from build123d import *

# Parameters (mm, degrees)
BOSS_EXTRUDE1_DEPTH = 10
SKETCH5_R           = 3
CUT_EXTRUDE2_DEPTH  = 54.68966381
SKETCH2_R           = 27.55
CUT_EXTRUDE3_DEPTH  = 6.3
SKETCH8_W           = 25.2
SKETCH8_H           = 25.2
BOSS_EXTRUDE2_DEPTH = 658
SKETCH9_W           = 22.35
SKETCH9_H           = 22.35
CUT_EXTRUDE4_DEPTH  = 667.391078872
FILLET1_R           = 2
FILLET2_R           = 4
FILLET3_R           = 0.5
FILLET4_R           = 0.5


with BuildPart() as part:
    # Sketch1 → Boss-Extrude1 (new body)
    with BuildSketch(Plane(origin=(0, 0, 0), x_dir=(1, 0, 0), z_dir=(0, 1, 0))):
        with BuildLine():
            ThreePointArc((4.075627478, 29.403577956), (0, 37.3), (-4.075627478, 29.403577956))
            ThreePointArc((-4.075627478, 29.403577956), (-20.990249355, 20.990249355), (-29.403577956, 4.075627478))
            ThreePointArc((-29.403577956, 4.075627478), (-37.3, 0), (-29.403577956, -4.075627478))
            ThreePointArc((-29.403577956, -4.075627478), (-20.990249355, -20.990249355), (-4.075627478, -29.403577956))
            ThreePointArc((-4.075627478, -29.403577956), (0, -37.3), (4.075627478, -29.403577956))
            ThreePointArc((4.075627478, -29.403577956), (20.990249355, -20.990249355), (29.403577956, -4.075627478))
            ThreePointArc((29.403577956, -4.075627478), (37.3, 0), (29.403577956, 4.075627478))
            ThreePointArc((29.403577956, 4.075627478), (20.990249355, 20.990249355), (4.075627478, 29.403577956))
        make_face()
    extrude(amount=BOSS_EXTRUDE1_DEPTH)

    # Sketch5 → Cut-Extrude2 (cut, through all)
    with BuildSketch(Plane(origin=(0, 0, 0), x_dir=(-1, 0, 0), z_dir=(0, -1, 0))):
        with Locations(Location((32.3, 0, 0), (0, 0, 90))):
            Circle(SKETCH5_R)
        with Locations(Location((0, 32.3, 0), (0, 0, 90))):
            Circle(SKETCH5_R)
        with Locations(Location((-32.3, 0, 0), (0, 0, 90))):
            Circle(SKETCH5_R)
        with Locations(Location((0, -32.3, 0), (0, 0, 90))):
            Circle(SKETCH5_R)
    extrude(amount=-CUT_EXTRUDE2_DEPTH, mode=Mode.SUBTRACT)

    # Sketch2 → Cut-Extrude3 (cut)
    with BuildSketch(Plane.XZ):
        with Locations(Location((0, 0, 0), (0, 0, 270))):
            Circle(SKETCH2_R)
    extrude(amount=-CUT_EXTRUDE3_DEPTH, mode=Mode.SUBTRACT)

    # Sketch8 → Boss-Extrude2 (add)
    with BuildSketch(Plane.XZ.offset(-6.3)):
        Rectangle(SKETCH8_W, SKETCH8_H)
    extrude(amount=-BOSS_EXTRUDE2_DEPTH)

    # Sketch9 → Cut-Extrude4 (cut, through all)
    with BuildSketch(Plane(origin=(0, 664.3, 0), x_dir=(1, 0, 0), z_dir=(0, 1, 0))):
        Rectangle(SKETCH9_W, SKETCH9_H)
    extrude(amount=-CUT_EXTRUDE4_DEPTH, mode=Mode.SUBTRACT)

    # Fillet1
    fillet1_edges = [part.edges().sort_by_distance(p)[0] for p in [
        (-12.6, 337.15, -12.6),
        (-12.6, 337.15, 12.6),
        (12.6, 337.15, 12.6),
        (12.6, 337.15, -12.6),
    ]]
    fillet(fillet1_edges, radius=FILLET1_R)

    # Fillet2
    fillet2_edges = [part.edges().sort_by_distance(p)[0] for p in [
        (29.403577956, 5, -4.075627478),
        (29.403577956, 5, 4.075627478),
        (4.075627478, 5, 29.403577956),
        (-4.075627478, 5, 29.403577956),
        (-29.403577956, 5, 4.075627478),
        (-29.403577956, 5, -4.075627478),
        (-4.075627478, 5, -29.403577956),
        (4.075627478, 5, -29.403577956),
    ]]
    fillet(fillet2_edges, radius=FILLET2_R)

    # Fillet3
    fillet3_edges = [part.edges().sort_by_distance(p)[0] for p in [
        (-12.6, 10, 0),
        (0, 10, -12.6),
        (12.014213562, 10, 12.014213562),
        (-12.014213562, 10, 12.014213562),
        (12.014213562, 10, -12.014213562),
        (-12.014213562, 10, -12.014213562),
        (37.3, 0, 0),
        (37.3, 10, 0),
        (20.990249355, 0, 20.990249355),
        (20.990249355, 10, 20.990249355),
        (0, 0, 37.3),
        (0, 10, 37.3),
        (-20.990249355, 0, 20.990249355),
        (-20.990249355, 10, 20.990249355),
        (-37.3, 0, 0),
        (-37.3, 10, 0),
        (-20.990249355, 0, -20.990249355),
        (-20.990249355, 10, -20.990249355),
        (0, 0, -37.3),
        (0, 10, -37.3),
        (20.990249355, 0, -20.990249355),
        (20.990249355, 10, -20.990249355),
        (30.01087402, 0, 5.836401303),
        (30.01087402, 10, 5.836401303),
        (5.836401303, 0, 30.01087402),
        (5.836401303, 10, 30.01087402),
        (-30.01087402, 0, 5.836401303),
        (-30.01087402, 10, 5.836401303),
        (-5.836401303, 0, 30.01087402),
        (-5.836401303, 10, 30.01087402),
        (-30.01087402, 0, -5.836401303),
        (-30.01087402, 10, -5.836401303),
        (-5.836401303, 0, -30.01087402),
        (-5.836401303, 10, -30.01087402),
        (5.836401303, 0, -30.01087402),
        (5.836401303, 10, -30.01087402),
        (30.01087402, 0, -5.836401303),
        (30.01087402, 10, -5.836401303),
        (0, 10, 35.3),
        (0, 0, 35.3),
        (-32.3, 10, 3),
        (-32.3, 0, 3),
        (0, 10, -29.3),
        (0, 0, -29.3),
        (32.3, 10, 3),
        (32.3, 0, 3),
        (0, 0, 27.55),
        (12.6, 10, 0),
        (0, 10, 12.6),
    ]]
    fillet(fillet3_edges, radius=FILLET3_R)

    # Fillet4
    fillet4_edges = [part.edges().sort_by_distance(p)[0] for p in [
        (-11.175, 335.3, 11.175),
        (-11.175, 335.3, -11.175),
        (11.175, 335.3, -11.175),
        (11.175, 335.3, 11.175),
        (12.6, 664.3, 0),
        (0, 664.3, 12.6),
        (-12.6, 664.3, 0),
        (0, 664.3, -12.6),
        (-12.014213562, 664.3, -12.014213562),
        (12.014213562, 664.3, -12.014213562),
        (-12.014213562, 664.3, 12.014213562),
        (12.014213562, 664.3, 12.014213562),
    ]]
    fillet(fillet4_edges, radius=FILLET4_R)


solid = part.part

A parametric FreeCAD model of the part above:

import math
import FreeCAD as App
import Part
import Sketcher
from FreeCAD import Vector
Q = App.Units.Quantity


def edges_at(feature, points):
    """Names of the edges that pass closest to the given points."""
    edges = feature.Shape.Edges
    near = lambda p: min(range(len(edges)), key=lambda i: edges[i].distToShape(Part.Vertex(*p))[0])
    return sorted({f"Edge{near(p) + 1}" for p in points})

doc = App.newDocument("Part")
body = doc.addObject("PartDesign::Body", "Body")

# Sketch on XZ plane
sketch1 = body.newObject("Sketcher::SketchObject", "Sketch")
sketch1.AttachmentSupport = (doc.getObject("XZ_Plane"), [""])
sketch1.MapMode = "FlatFace"
sketch1.addGeometry(Part.ArcOfCircle(Part.Circle(Vector(0, -32.3, 0), Vector(0, 0, 1), 5), math.radians(144.599773), math.radians(395.400227)), False)
sketch1.addGeometry(Part.ArcOfCircle(Part.Circle(Vector(0, 0, 0), Vector(0, 0, 1), 29.684695), math.radians(-172.108519), math.radians(-97.891481)), False)
sketch1.addGeometry(Part.ArcOfCircle(Part.Circle(Vector(-32.3, 0, 0), Vector(0, 0, 1), 5), math.radians(54.599773), math.radians(305.400227)), False)
sketch1.addGeometry(Part.ArcOfCircle(Part.Circle(Vector(0, 0, 0), Vector(0, 0, 1), 29.684695), math.radians(97.891481), math.radians(172.108519)), False)
sketch1.addGeometry(Part.ArcOfCircle(Part.Circle(Vector(0, 32.3, 0), Vector(0, 0, 1), 5), math.radians(-35.400227), math.radians(215.400227)), False)
sketch1.addGeometry(Part.ArcOfCircle(Part.Circle(Vector(0, 0, 0), Vector(0, 0, 1), 29.684695), math.radians(7.891481), math.radians(82.108519)), False)
sketch1.addGeometry(Part.ArcOfCircle(Part.Circle(Vector(32.3, 0, 0), Vector(0, 0, 1), 5), math.radians(-125.400227), math.radians(125.400227)), False)
sketch1.addGeometry(Part.ArcOfCircle(Part.Circle(Vector(0, 0, 0), Vector(0, 0, 1), 29.684695), math.radians(-82.108519), math.radians(-7.891481)), False)
sketch1.addConstraint(Sketcher.Constraint("Coincident", 0, 1, 1, 2))
sketch1.addConstraint(Sketcher.Constraint("Coincident", 1, 1, 2, 2))
sketch1.addConstraint(Sketcher.Constraint("Coincident", 2, 1, 3, 2))
sketch1.addConstraint(Sketcher.Constraint("Coincident", 3, 1, 4, 2))
sketch1.addConstraint(Sketcher.Constraint("Coincident", 4, 1, 5, 2))
sketch1.addConstraint(Sketcher.Constraint("Coincident", 5, 1, 6, 2))
sketch1.addConstraint(Sketcher.Constraint("Coincident", 6, 1, 7, 2))
sketch1.addConstraint(Sketcher.Constraint("Coincident", 7, 1, 0, 2))
sketch1.addConstraint(Sketcher.Constraint("Coincident", 1, 3, -1, 1))
sketch1.addConstraint(Sketcher.Constraint("Coincident", 3, 3, -1, 1))
sketch1.addConstraint(Sketcher.Constraint("Coincident", 5, 3, -1, 1))
sketch1.addConstraint(Sketcher.Constraint("Coincident", 7, 3, -1, 1))
sketch1.addConstraint(Sketcher.Constraint("Equal", 0, 2))
sketch1.addConstraint(Sketcher.Constraint("Equal", 1, 3))
sketch1.addConstraint(Sketcher.Constraint("Equal", 2, 4))
sketch1.addConstraint(Sketcher.Constraint("Equal", 3, 5))
sketch1.addConstraint(Sketcher.Constraint("Equal", 4, 6))
sketch1.addConstraint(Sketcher.Constraint("Equal", 5, 7))
sketch1.addConstraint(Sketcher.Constraint("Symmetric", 0, 3, 4, 3, -1, 1))
sketch1.addConstraint(Sketcher.Constraint("Symmetric", 2, 3, 6, 3, -1, 1))
sketch1.addConstraint(Sketcher.Constraint("PointOnObject", 0, 3, -2))
sketch1.addConstraint(Sketcher.Constraint("PointOnObject", 2, 3, -1))
sketch1.addConstraint(Sketcher.Constraint("Radius", 0, Q("5 mm")))
sketch1.addConstraint(Sketcher.Constraint("DistanceY", 0, 3, -1, 1, Q("32.3 mm")))
sketch1.addConstraint(Sketcher.Constraint("DistanceX", 2, 3, -1, 1, Q("32.3 mm")))
sketch1.addConstraint(Sketcher.Constraint("Radius", 1, Q("29.684695 mm")))
pad1 = body.newObject("PartDesign::Pad", "Pad")
pad1.Profile = sketch1
pad1.Length = 10
pad1.Reversed = True

# Sketch on XZ plane
sketch2 = body.newObject("Sketcher::SketchObject", "Sketch001")
sketch2.AttachmentSupport = (doc.getObject("XZ_Plane"), [""])
sketch2.MapMode = "FlatFace"
sketch2.addGeometry(Part.Circle(Vector(-32.3, 0, 0), Vector(0, 0, 1), 3), False)
sketch2.addGeometry(Part.Circle(Vector(0, -32.3, 0), Vector(0, 0, 1), 3), False)
sketch2.addGeometry(Part.Circle(Vector(32.3, 0, 0), Vector(0, 0, 1), 3), False)
sketch2.addGeometry(Part.Circle(Vector(0, 32.3, 0), Vector(0, 0, 1), 3), False)
sketch2.addConstraint(Sketcher.Constraint("Equal", 0, 1))
sketch2.addConstraint(Sketcher.Constraint("Equal", 1, 2))
sketch2.addConstraint(Sketcher.Constraint("Equal", 2, 3))
sketch2.addConstraint(Sketcher.Constraint("Symmetric", 0, 3, 2, 3, -1, 1))
sketch2.addConstraint(Sketcher.Constraint("Symmetric", 1, 3, 3, 3, -1, 1))
sketch2.addConstraint(Sketcher.Constraint("PointOnObject", 0, 3, -1))
sketch2.addConstraint(Sketcher.Constraint("PointOnObject", 1, 3, -2))
sketch2.addConstraint(Sketcher.Constraint("Diameter", 0, Q("6 mm")))
sketch2.addConstraint(Sketcher.Constraint("DistanceX", 0, 3, -1, 1, Q("32.3 mm")))
sketch2.addConstraint(Sketcher.Constraint("DistanceY", 1, 3, -1, 1, Q("32.3 mm")))
pocket1 = body.newObject("PartDesign::Pocket", "Pocket")
pocket1.Profile = sketch2
pocket1.Type = "ThroughAll"

# Sketch on XZ plane
sketch3 = body.newObject("Sketcher::SketchObject", "Sketch002")
sketch3.AttachmentSupport = (doc.getObject("XZ_Plane"), [""])
sketch3.MapMode = "FlatFace"
sketch3.addGeometry(Part.Circle(Vector(0, 0, 0), Vector(0, 0, 1), 27.55), False)
sketch3.addConstraint(Sketcher.Constraint("Coincident", 0, 3, -1, 1))
sketch3.addConstraint(Sketcher.Constraint("Diameter", 0, Q("55.1 mm")))
pocket2 = body.newObject("PartDesign::Pocket", "Pocket001")
pocket2.Profile = sketch3
pocket2.Length = 6.3

# Sketch on XZ plane
sketch4 = body.newObject("Sketcher::SketchObject", "Sketch003")
sketch4.AttachmentSupport = (doc.getObject("XZ_Plane"), [""])
sketch4.MapMode = "FlatFace"
sketch4.AttachmentOffset = App.Placement(Vector(0, 0, -6.3), App.Rotation())
sketch4.addGeometry(Part.LineSegment(Vector(-12.6, 12.6, 0), Vector(-12.6, -12.6, 0)), False)
sketch4.addGeometry(Part.LineSegment(Vector(-12.6, -12.6, 0), Vector(12.6, -12.6, 0)), False)
sketch4.addGeometry(Part.LineSegment(Vector(12.6, -12.6, 0), Vector(12.6, 12.6, 0)), False)
sketch4.addGeometry(Part.LineSegment(Vector(12.6, 12.6, 0), Vector(-12.6, 12.6, 0)), False)
sketch4.addConstraint(Sketcher.Constraint("Coincident", 0, 2, 1, 1))
sketch4.addConstraint(Sketcher.Constraint("Coincident", 1, 2, 2, 1))
sketch4.addConstraint(Sketcher.Constraint("Coincident", 2, 2, 3, 1))
sketch4.addConstraint(Sketcher.Constraint("Coincident", 3, 2, 0, 1))
sketch4.addConstraint(Sketcher.Constraint("Vertical", 0))
sketch4.addConstraint(Sketcher.Constraint("Horizontal", 1))
sketch4.addConstraint(Sketcher.Constraint("Vertical", 2))
sketch4.addConstraint(Sketcher.Constraint("Horizontal", 3))
sketch4.addConstraint(Sketcher.Constraint("Symmetric", 0, 2, 2, 2, -1, 1))
sketch4.addConstraint(Sketcher.Constraint("Equal", 3, 0))
sketch4.addConstraint(Sketcher.Constraint("DistanceX", 1, 1, 1, 2, Q("25.2 mm")))
pad2 = body.newObject("PartDesign::Pad", "Pad001")
pad2.Profile = sketch4
pad2.Length = 658
pad2.Reversed = True

# Sketch on XZ plane
sketch5 = body.newObject("Sketcher::SketchObject", "Sketch004")
sketch5.AttachmentSupport = (doc.getObject("XZ_Plane"), [""])
sketch5.MapMode = "FlatFace"
sketch5.AttachmentOffset = App.Placement(Vector(0, 0, -664.3), App.Rotation())
sketch5.addGeometry(Part.LineSegment(Vector(-11.175, -11.175, 0), Vector(-11.175, 11.175, 0)), False)
sketch5.addGeometry(Part.LineSegment(Vector(-11.175, 11.175, 0), Vector(11.175, 11.175, 0)), False)
sketch5.addGeometry(Part.LineSegment(Vector(11.175, 11.175, 0), Vector(11.175, -11.175, 0)), False)
sketch5.addGeometry(Part.LineSegment(Vector(11.175, -11.175, 0), Vector(-11.175, -11.175, 0)), False)
sketch5.addConstraint(Sketcher.Constraint("Coincident", 0, 2, 1, 1))
sketch5.addConstraint(Sketcher.Constraint("Coincident", 1, 2, 2, 1))
sketch5.addConstraint(Sketcher.Constraint("Coincident", 2, 2, 3, 1))
sketch5.addConstraint(Sketcher.Constraint("Coincident", 3, 2, 0, 1))
sketch5.addConstraint(Sketcher.Constraint("Vertical", 0))
sketch5.addConstraint(Sketcher.Constraint("Horizontal", 1))
sketch5.addConstraint(Sketcher.Constraint("Vertical", 2))
sketch5.addConstraint(Sketcher.Constraint("Horizontal", 3))
sketch5.addConstraint(Sketcher.Constraint("Symmetric", 0, 2, 2, 2, -1, 1))
sketch5.addConstraint(Sketcher.Constraint("Equal", 3, 0))
sketch5.addConstraint(Sketcher.Constraint("DistanceX", 1, 1, 1, 2, Q("22.35 mm")))
pocket3 = body.newObject("PartDesign::Pocket", "Pocket002")
pocket3.Profile = sketch5
pocket3.Type = "ThroughAll"
pocket3.Reversed = True
doc.recompute()

fillet = body.newObject("PartDesign::Fillet", "Fillet")
fillet.Base = (pocket3, edges_at(pocket3, [
    (-12.6, 337.15, -12.6),
    (-12.6, 337.15, 12.6),
    (12.6, 337.15, 12.6),
    (12.6, 337.15, -12.6),
]))
fillet.Radius = 2
doc.recompute()

fillet2 = body.newObject("PartDesign::Fillet", "Fillet001")
fillet2.Base = (fillet, edges_at(fillet, [
    (29.404, 5, -4.076),
    (29.404, 5, 4.076),
    (4.076, 5, 29.404),
    (-4.076, 5, 29.404),
    (-29.404, 5, 4.076),
    (-29.404, 5, -4.076),
    (-4.076, 5, -29.404),
    (4.076, 5, -29.404),
]))
fillet2.Radius = 4
doc.recompute()

fillet3 = body.newObject("PartDesign::Fillet", "Fillet002")
fillet3.Base = (fillet2, edges_at(fillet2, [
    (-12.6, 10, 0),
    (0, 10, -12.6),
    (12.014, 10, 12.014),
    (-12.014, 10, 12.014),
    (12.014, 10, -12.014),
    (-12.014, 10, -12.014),
    (37.3, 0, 0),
    (37.3, 10, 0),
    (20.99, 0, 20.99),
    (20.99, 10, 20.99),
    (0, 0, 37.3),
    (0, 10, 37.3),
    (-20.99, 0, 20.99),
    (-20.99, 10, 20.99),
    (-37.3, 0, 0),
    (-37.3, 10, 0),
    (-20.99, 0, -20.99),
    (-20.99, 10, -20.99),
    (0, 0, -37.3),
    (0, 10, -37.3),
    (20.99, 0, -20.99),
    (20.99, 10, -20.99),
    (30.011, 0, 5.836),
    (30.011, 10, 5.836),
    (5.836, 0, 30.011),
    (5.836, 10, 30.011),
    (-30.011, 0, 5.836),
    (-30.011, 10, 5.836),
    (-5.836, 0, 30.011),
    (-5.836, 10, 30.011),
    (-30.011, 0, -5.836),
    (-30.011, 10, -5.836),
    (-5.836, 0, -30.011),
    (-5.836, 10, -30.011),
    (5.836, 0, -30.011),
    (5.836, 10, -30.011),
    (30.011, 0, -5.836),
    (30.011, 10, -5.836),
    (0, 10, 35.3),
    (0, 0, 35.3),
    (-32.3, 10, 3),
    (-32.3, 0, 3),
    (0, 10, -29.3),
    (0, 0, -29.3),
    (32.3, 10, 3),
    (32.3, 0, 3),
    (0, 0, 27.55),
    (12.6, 10, 0),
    (0, 10, 12.6),
]))
fillet3.Radius = 0.5
doc.recompute()

fillet4 = body.newObject("PartDesign::Fillet", "Fillet003")
fillet4.Base = (fillet3, edges_at(fillet3, [
    (-11.175, 335.3, 11.175),
    (-11.175, 335.3, -11.175),
    (11.175, 335.3, -11.175),
    (11.175, 335.3, 11.175),
    (12.6, 664.3, 0),
    (0, 664.3, 12.6),
    (-12.6, 664.3, 0),
    (0, 664.3, -12.6),
    (-12.014, 664.3, -12.014),
    (12.014, 664.3, -12.014),
    (-12.014, 664.3, 12.014),
    (12.014, 664.3, 12.014),
]))
fillet4.Radius = 0.5

doc.recompute()
